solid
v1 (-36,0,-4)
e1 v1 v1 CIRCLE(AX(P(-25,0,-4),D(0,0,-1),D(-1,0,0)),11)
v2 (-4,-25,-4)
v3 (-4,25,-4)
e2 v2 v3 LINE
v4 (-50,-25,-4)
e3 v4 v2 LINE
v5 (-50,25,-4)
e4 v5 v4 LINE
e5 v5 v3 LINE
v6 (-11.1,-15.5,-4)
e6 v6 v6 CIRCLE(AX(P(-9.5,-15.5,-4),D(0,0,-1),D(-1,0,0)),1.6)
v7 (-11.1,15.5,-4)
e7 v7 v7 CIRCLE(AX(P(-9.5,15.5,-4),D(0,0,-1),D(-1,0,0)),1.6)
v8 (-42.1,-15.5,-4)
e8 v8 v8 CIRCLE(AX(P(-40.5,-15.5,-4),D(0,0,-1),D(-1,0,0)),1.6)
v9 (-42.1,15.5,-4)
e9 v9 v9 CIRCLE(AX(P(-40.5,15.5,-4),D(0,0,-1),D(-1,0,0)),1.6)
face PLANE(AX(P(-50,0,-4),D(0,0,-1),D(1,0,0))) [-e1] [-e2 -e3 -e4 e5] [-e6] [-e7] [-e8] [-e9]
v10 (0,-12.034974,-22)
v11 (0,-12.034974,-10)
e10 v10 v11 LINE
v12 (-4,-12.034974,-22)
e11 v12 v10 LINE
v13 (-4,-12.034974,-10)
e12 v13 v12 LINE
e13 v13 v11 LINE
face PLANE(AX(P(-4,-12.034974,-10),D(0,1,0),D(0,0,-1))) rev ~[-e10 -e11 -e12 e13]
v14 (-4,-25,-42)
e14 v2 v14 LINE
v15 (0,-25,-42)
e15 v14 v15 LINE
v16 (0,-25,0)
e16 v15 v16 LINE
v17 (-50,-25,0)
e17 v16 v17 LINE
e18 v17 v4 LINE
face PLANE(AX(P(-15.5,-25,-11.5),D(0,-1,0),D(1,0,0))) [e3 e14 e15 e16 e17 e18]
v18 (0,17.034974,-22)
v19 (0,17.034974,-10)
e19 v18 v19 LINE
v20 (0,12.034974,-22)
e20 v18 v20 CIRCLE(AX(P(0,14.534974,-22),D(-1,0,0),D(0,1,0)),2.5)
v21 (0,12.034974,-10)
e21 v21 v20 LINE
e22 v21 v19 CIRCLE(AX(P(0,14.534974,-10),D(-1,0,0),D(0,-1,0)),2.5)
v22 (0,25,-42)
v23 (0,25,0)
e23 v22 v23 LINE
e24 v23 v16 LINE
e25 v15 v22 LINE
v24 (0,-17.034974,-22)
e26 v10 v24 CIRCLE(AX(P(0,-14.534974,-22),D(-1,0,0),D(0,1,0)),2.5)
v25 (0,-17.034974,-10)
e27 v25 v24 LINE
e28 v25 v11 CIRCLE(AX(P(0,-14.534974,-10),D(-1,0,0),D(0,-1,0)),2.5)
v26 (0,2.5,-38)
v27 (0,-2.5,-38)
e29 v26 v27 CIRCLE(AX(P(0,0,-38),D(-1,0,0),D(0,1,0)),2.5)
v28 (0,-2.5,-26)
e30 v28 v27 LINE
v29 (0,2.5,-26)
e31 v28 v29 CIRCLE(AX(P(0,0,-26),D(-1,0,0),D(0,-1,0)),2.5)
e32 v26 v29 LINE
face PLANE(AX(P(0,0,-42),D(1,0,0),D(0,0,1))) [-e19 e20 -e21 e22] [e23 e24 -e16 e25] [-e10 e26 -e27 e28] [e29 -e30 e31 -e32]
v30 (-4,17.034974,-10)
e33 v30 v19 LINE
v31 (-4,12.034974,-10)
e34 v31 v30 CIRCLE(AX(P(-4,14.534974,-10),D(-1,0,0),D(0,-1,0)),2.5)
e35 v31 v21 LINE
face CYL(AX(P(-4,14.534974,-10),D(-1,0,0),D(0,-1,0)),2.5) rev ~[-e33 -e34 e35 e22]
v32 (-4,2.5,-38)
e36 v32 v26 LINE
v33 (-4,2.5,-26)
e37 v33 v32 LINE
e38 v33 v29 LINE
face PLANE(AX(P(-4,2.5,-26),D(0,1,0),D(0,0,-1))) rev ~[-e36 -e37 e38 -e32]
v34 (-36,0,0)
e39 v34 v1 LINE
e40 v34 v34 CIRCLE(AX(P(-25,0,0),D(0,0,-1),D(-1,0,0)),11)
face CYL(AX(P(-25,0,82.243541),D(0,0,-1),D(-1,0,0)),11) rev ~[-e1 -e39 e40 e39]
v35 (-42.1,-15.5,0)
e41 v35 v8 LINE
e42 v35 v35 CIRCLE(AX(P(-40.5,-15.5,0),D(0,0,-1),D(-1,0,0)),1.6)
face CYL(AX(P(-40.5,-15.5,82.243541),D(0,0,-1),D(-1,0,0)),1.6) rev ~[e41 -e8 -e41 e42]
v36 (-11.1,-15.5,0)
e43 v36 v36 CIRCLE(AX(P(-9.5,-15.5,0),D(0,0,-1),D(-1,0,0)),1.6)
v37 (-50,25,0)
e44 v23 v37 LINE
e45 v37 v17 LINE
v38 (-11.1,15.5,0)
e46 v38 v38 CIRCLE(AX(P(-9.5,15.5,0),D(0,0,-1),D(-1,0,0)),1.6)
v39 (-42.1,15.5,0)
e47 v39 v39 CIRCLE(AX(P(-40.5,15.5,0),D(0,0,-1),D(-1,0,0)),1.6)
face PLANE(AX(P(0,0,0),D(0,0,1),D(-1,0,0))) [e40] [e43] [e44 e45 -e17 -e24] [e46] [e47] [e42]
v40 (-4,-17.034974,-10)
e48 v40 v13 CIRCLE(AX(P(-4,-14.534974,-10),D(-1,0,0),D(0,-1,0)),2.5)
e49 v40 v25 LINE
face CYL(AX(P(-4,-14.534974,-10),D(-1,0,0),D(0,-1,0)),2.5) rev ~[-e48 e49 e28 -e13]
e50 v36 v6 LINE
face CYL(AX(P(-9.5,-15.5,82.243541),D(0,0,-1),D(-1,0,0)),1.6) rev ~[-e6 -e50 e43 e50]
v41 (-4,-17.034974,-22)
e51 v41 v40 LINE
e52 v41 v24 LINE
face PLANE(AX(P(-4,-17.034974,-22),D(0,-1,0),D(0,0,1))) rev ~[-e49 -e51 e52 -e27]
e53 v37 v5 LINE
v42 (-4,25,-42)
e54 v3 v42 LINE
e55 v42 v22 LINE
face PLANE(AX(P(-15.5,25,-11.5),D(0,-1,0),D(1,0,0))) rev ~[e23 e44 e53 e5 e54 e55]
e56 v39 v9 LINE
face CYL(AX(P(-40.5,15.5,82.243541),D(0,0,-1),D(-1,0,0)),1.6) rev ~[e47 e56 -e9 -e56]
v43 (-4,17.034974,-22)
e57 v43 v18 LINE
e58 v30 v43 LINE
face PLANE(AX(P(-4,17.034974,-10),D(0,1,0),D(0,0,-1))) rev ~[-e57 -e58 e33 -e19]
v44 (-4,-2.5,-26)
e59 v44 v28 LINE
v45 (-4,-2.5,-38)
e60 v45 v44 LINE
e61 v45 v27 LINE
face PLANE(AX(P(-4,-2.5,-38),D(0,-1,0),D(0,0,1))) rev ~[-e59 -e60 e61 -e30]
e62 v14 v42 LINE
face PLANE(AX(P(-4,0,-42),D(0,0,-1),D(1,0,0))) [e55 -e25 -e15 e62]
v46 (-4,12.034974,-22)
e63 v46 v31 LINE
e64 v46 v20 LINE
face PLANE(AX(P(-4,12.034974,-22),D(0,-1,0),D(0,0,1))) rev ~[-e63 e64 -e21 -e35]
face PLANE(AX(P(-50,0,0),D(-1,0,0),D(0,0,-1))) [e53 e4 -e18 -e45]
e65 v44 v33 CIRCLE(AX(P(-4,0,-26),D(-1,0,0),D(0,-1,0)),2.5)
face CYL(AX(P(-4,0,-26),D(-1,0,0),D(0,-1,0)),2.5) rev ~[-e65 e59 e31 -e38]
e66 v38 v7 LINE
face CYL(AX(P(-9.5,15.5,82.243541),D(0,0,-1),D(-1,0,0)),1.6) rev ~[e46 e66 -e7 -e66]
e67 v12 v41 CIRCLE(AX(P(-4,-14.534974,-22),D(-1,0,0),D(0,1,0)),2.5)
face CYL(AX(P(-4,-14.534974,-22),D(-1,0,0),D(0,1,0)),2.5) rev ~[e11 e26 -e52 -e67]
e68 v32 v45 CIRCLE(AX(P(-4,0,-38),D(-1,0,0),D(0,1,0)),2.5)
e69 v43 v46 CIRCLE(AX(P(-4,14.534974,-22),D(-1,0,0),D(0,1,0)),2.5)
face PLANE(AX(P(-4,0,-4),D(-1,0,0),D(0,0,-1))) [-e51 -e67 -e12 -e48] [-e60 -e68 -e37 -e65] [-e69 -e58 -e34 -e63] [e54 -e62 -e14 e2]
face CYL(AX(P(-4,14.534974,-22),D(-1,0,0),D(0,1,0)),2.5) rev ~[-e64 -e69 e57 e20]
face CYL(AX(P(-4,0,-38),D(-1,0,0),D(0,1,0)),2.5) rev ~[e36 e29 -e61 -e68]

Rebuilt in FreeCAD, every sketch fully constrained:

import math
import FreeCAD as App
import Part
import Sketcher

doc = App.newDocument("Part")
body = doc.addObject("PartDesign::Body", "Body")

# Sketch on XZ plane
sketch1 = body.newObject("Sketcher::SketchObject", "Sketch")
sketch1.AttachmentSupport = (doc.getObject("XZ_Plane"), [""])
sketch1.MapMode = "FlatFace"
sketch1.addGeometry([
    Part.LineSegment(App.Vector(0, -42, 0), App.Vector(0, 0, 0)),  # 0
    Part.LineSegment(App.Vector(0, 0, 0), App.Vector(-50, 0, 0)),  # 1
    Part.LineSegment(App.Vector(-50, 0, 0), App.Vector(-50, -4, 0)),  # 2
    Part.LineSegment(App.Vector(-50, -4, 0), App.Vector(-4, -4, 0)),  # 3
    Part.LineSegment(App.Vector(-4, -4, 0), App.Vector(-4, -42, 0)),  # 4
    Part.LineSegment(App.Vector(-4, -42, 0), App.Vector(0, -42, 0)),  # 5
], False)
sketch1.addConstraint([
    Sketcher.Constraint("Coincident", 0, 2, 1, 1),
    Sketcher.Constraint("Coincident", 1, 2, 2, 1),
    Sketcher.Constraint("Coincident", 2, 2, 3, 1),
    Sketcher.Constraint("Coincident", 3, 2, 4, 1),
    Sketcher.Constraint("Coincident", 4, 2, 5, 1),
    Sketcher.Constraint("Coincident", 5, 2, 0, 1),
    Sketcher.Constraint("Vertical", 0),
    Sketcher.Constraint("Horizontal", 1),
    Sketcher.Constraint("Vertical", 2),
    Sketcher.Constraint("Horizontal", 3),
    Sketcher.Constraint("Vertical", 4),
    Sketcher.Constraint("Horizontal", 5),
    Sketcher.Constraint("Coincident", 0, 2, -1, 1),
    Sketcher.Constraint("Equal", 5, 2),
    Sketcher.Constraint("DistanceX", 1, 2, 1, 1, 50.0),
    Sketcher.Constraint("DistanceX", 3, 1, 3, 2, 46.0),
    Sketcher.Constraint("DistanceY", 0, 1, 0, 2, 42.0),
])
pad1 = body.newObject("PartDesign::Pad", "Pad")
pad1.Profile = sketch1
pad1.Length = 50
pad1.Midplane = True

# Sketch on XY plane
sketch2 = body.newObject("Sketcher::SketchObject", "Sketch001")
sketch2.AttachmentSupport = (doc.getObject("XY_Plane"), [""])
sketch2.MapMode = "FlatFace"
sketch2.addGeometry([
    Part.Circle(App.Vector(-9.5, 15.5, 0), App.Vector(0, 0, 1), 1.6),
    Part.Circle(App.Vector(-9.5, -15.5, 0), App.Vector(0, 0, 1), 1.6),
    Part.Circle(App.Vector(-40.5, -15.5, 0), App.Vector(0, 0, 1), 1.6),
    Part.Circle(App.Vector(-40.5, 15.5, 0), App.Vector(0, 0, 1), 1.6),
], False)
sketch2.addConstraint([
    Sketcher.Constraint("Equal", 0, 1),
    Sketcher.Constraint("Equal", 1, 2),
    Sketcher.Constraint("Equal", 2, 3),
    Sketcher.Constraint("Symmetric", 0, 3, 1, 3, -1),
    Sketcher.Constraint("Symmetric", 2, 3, 3, 3, -1),
    Sketcher.Constraint("Horizontal", 1, 3, 2, 3),
    Sketcher.Constraint("Diameter", 0, 3.2),
    Sketcher.Constraint("DistanceY", 1, 3, 0, 3, 31.0),
    Sketcher.Constraint("DistanceX", 2, 3, 1, 3, 31.0),
    Sketcher.Constraint("DistanceX", 0, 3, -1, 1, 9.5),
])
doc.recompute()
hole = body.newObject("PartDesign::Hole", "Hole")
hole.Profile = sketch2
hole.ThreadType = "None"
hole.Diameter = 3.2
hole.DepthType = "ThroughAll"

# Sketch on XY plane
sketch3 = body.newObject("Sketcher::SketchObject", "Sketch002")
sketch3.AttachmentSupport = (doc.getObject("XY_Plane"), [""])
sketch3.MapMode = "FlatFace"
sketch3.addGeometry(Part.Circle(App.Vector(-25, 0, 0), App.Vector(0, 0, 1), 11), False)
sketch3.addConstraint([
    Sketcher.Constraint("PointOnObject", 0, 3, -1),
    Sketcher.Constraint("Diameter", 0, 22.0),
    Sketcher.Constraint("DistanceX", 0, 3, -1, 1, 25.0),
])
doc.recompute()
hole2 = body.newObject("PartDesign::Hole", "Hole001")
hole2.Profile = sketch3
hole2.ThreadType = "None"
hole2.Diameter = 22
hole2.DepthType = "ThroughAll"

# Sketch on YZ plane
sketch4 = body.newObject("Sketcher::SketchObject", "Sketch003")
sketch4.AttachmentSupport = (doc.getObject("YZ_Plane"), [""])
sketch4.MapMode = "FlatFace"
sketch4.AttachmentOffset = App.Placement(App.Vector(0, 0, -4), App.Rotation())
sketch4.addGeometry([
    Part.ArcOfCircle(Part.Circle(App.Vector(14.5, -22, 0), App.Vector(0, 0, 1), 2.5), math.radians(180), math.radians(360)),  # 0
    Part.LineSegment(App.Vector(12, -22, 0), App.Vector(12, -10, 0)),  # 1
    Part.ArcOfCircle(Part.Circle(App.Vector(14.5, -10, 0), App.Vector(0, 0, 1), 2.5), math.radians(0), math.radians(180)),  # 2
    Part.LineSegment(App.Vector(17, -10, 0), App.Vector(17, -22, 0)),  # 3
    Part.ArcOfCircle(Part.Circle(App.Vector(0, -38, 0), App.Vector(0, 0, 1), 2.5), math.radians(180), math.radians(360)),  # 4
    Part.LineSegment(App.Vector(-2.5, -38, 0), App.Vector(-2.5, -26, 0)),  # 5
    Part.ArcOfCircle(Part.Circle(App.Vector(0, -26, 0), App.Vector(0, 0, 1), 2.5), math.radians(0), math.radians(180)),  # 6
    Part.LineSegment(App.Vector(2.5, -26, 0), App.Vector(2.5, -38, 0)),  # 7
    Part.ArcOfCircle(Part.Circle(App.Vector(-14.5, -22, 0), App.Vector(0, 0, 1), 2.5), math.radians(180), math.radians(360)),  # 8
    Part.LineSegment(App.Vector(-17, -22, 0), App.Vector(-17, -10, 0)),  # 9
    Part.ArcOfCircle(Part.Circle(App.Vector(-14.5, -10, 0), App.Vector(0, 0, 1), 2.5), math.radians(0), math.radians(180)),  # 10
    Part.LineSegment(App.Vector(-12, -10, 0), App.Vector(-12, -22, 0)),  # 11
], False)
sketch4.addConstraint([
    Sketcher.Constraint("Tangent", 0, 1, 1, 1),
    Sketcher.Constraint("Tangent", 1, 2, 2, 2),
    Sketcher.Constraint("Tangent", 2, 1, 3, 1),
    Sketcher.Constraint("Tangent", 3, 2, 0, 2),
    Sketcher.Constraint("Tangent", 4, 1, 5, 1),
    Sketcher.Constraint("Tangent", 5, 2, 6, 2),
    Sketcher.Constraint("Tangent", 6, 1, 7, 1),
    Sketcher.Constraint("Tangent", 7, 2, 4, 2),
    Sketcher.Constraint("Tangent", 8, 1, 9, 1),
    Sketcher.Constraint("Tangent", 9, 2, 10, 2),
    Sketcher.Constraint("Tangent", 10, 1, 11, 1),
    Sketcher.Constraint("Tangent", 11, 2, 8, 2),
    Sketcher.Constraint("Vertical", 1),
    Sketcher.Constraint("Vertical", 3),
    Sketcher.Constraint("Vertical", 5),
    Sketcher.Constraint("Vertical", 7),
    Sketcher.Constraint("Vertical", 9),
    Sketcher.Constraint("Vertical", 11),
    Sketcher.Constraint("Equal", 2, 4),
    Sketcher.Constraint("Equal", 6, 8),
    Sketcher.Constraint("Symmetric", 0, 3, 8, 3, -2),
    Sketcher.Constraint("PointOnObject", 4, 3, -2),
    Sketcher.Constraint("Horizontal", 2, 3, 10, 3),
    Sketcher.Constraint("Equal", 3, 5),
    Sketcher.Constraint("Radius", 0, 2.5),
    Sketcher.Constraint("DistanceY", 1, 1, 1, 2, 12.0),
    Sketcher.Constraint("DistanceY", 0, 3, -1, 1, 22.0),
    Sketcher.Constraint("DistanceY", 4, 3, -1, 1, 38.0),
    Sketcher.Constraint("DistanceX", 8, 3, 0, 3, 29.069948),
])
pocket1 = body.newObject("PartDesign::Pocket", "Pocket")
pocket1.Profile = sketch4
pocket1.Type = "ThroughAll"
pocket1.Reversed = True

doc.recompute()
